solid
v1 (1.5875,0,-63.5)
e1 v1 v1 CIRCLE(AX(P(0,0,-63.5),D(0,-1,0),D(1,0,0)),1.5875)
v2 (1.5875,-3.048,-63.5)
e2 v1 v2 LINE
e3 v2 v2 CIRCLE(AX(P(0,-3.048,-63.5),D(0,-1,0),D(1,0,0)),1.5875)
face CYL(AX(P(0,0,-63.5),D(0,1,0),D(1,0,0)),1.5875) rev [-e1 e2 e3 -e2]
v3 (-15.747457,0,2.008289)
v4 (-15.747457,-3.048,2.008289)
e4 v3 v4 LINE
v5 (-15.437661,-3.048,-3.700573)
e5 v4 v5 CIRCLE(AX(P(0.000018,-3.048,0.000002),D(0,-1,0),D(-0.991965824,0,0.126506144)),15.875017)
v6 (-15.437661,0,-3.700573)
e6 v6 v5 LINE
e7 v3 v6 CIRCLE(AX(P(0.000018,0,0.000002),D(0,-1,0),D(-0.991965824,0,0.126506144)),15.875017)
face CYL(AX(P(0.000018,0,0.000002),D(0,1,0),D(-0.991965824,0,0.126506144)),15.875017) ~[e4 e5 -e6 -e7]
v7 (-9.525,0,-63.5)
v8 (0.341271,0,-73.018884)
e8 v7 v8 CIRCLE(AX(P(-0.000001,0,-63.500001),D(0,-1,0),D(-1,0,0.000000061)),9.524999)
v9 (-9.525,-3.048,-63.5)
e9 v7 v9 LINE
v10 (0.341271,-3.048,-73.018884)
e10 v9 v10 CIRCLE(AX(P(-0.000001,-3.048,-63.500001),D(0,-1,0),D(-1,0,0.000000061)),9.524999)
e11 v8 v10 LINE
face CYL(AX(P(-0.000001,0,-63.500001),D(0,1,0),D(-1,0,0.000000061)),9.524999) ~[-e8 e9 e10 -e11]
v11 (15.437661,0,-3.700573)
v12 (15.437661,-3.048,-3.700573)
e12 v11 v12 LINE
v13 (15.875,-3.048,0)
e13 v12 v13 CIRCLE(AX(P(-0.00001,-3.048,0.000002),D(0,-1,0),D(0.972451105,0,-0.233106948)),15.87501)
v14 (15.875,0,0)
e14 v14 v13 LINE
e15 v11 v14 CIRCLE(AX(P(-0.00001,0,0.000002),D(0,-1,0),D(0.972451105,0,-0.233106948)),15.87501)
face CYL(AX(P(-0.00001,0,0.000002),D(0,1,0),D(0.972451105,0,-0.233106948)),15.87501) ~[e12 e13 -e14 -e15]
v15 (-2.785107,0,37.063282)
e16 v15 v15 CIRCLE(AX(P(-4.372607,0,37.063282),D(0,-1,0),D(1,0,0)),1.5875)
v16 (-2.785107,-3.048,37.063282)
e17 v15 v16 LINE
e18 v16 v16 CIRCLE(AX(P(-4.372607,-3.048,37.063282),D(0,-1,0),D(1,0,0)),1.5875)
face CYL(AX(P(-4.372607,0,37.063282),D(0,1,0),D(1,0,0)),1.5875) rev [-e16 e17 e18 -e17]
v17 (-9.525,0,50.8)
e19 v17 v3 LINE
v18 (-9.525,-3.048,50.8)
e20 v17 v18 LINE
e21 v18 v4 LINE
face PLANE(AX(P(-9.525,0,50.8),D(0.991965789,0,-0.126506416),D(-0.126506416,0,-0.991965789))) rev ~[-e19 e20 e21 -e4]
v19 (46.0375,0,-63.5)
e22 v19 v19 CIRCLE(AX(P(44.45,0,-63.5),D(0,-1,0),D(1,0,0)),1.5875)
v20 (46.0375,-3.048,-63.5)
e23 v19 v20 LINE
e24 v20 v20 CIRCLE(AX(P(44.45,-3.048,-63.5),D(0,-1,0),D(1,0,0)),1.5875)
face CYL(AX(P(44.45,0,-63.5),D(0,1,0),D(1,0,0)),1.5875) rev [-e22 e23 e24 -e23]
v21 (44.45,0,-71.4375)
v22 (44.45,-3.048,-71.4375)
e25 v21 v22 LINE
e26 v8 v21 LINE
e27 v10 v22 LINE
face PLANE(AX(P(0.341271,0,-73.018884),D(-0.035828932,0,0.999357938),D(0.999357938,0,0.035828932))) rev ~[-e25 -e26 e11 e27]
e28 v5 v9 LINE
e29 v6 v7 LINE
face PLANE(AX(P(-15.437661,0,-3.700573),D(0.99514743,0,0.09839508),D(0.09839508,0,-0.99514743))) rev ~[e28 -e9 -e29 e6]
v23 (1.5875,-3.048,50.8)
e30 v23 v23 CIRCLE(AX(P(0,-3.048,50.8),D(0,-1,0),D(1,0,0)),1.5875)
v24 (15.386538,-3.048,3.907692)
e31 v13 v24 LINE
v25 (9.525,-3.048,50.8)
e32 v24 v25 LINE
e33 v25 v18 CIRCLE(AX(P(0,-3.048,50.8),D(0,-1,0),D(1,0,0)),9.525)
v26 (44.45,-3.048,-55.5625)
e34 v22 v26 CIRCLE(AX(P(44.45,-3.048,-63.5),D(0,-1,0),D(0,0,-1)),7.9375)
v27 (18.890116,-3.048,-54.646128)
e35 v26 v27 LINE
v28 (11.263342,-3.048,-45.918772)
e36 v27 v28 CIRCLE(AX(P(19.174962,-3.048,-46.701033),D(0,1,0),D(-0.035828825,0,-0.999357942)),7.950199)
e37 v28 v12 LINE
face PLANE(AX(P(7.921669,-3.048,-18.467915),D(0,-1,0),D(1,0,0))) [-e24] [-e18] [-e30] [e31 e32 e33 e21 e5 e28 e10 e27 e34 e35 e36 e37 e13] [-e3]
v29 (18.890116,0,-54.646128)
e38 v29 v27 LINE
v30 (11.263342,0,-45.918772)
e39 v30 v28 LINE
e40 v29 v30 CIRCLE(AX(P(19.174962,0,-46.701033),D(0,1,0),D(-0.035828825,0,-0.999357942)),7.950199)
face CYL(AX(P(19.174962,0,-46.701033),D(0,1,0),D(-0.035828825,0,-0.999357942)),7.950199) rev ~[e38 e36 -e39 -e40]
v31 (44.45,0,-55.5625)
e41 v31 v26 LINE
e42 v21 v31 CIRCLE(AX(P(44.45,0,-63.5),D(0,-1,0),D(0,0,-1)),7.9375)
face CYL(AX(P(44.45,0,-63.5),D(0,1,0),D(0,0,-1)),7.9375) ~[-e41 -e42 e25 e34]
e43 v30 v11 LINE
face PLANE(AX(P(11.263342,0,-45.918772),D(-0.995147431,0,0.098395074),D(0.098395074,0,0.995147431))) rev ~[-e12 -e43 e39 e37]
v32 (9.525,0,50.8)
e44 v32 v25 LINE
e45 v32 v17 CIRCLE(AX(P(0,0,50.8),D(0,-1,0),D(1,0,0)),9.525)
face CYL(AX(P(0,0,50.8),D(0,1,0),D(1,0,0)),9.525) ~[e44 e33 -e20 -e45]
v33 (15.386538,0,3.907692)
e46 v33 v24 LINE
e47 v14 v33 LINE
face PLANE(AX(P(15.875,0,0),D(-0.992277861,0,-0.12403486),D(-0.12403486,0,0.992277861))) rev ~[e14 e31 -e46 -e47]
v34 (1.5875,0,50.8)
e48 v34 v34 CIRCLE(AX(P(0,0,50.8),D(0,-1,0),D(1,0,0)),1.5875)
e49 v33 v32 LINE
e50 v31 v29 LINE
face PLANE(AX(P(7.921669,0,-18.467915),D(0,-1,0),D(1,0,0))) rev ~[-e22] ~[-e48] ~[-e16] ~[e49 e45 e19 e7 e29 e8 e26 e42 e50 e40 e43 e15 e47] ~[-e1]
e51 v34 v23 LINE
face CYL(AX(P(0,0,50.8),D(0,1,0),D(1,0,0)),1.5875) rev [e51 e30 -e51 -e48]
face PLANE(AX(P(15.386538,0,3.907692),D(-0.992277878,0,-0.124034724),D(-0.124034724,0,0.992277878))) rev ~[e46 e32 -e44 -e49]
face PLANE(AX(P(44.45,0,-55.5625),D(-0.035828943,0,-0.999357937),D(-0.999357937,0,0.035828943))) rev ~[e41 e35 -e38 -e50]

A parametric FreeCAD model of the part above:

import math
import FreeCAD as App
import Part
import Sketcher
from FreeCAD import Vector
Q = App.Units.Quantity

doc = App.newDocument("Part")
body = doc.addObject("PartDesign::Body", "Body")

# Sketch on XZ plane
sketch1 = body.newObject("Sketcher::SketchObject", "Sketch")
sketch1.AttachmentSupport = (doc.getObject("XZ_Plane"), [""])
sketch1.MapMode = "FlatFace"
sketch1.addGeometry([
    Part.LineSegment(Vector(-9.525, 50.8, 0), Vector(-15.747457, 2.008289, 0)),  # 0
    Part.ArcOfCircle(Part.Circle(Vector(0.000018, 0.000002, 0), Vector(0, 0, 1), 15.875017), math.radians(172.732258), math.radians(193.480052)),  # 1
    Part.LineSegment(Vector(-15.437661, -3.700573, 0), Vector(-9.525, -63.5, 0)),  # 2
    Part.ArcOfCircle(Part.Circle(Vector(-0.000001, -63.500001, 0), Vector(0, 0, 1), 9.524999), math.radians(179.999996), math.radians(272.053294)),  # 3
    Part.LineSegment(Vector(0.341271, -73.018884, 0), Vector(44.45, -71.4375, 0)),  # 4
    Part.ArcOfCircle(Part.Circle(Vector(44.45, -63.5, 0), Vector(0, 0, 1), 7.9375), math.radians(-90), math.radians(90)),  # 5
    Part.LineSegment(Vector(44.45, -55.5625, 0), Vector(18.890116, -54.646128, 0)),  # 6
    Part.ArcOfCircle(Part.Circle(Vector(19.174962, -46.701033, 0), Vector(0, 0, 1), 7.950199), math.radians(174.353235), math.radians(267.94672)),  # 7
    Part.LineSegment(Vector(11.263342, -45.918772, 0), Vector(15.437661, -3.700573, 0)),  # 8
    Part.ArcOfCircle(Part.Circle(Vector(-0.00001, 0.000002, 0), Vector(0, 0, 1), 15.87501), math.radians(-13.48006), math.radians(-0.000008)),  # 9
    Part.LineSegment(Vector(15.875, 0, 0), Vector(15.386538, 3.907692, 0)),  # 10
    Part.LineSegment(Vector(15.386538, 3.907692, 0), Vector(9.525, 50.8, 0)),  # 11
    Part.ArcOfCircle(Part.Circle(Vector(0, 50.8, 0), Vector(0, 0, 1), 9.525), math.radians(0), math.radians(180)),  # 12
    Part.Circle(Vector(0, -63.5, 0), Vector(0, 0, 1), 1.5875),  # 13
    Part.Circle(Vector(44.45, -63.5, 0), Vector(0, 0, 1), 1.5875),  # 14
    Part.Circle(Vector(-4.372607, 37.063282, 0), Vector(0, 0, 1), 1.5875),  # 15
    Part.Circle(Vector(0, 50.8, 0), Vector(0, 0, 1), 1.5875),  # 16
], False)
sketch1.addConstraint([
    Sketcher.Constraint("Tangent", 0, 2, 1, 1),
    Sketcher.Constraint("Coincident", 1, 2, 2, 1),
    Sketcher.Constraint("Coincident", 2, 2, 3, 1),
    Sketcher.Constraint("Tangent", 3, 2, 4, 1),
    Sketcher.Constraint("Coincident", 4, 2, 5, 1),
    Sketcher.Constraint("Coincident", 5, 2, 6, 1),
    Sketcher.Constraint("Tangent", 6, 2, 7, 2),
    Sketcher.Constraint("Tangent", 7, 1, 8, 1),
    Sketcher.Constraint("Coincident", 8, 2, 9, 1),
    Sketcher.Constraint("Coincident", 9, 2, 10, 1),
    Sketcher.Constraint("Coincident", 10, 2, 11, 1),
    Sketcher.Constraint("Coincident", 11, 2, 12, 1),
    Sketcher.Constraint("Coincident", 12, 2, 0, 1),
    Sketcher.Constraint("Coincident", 13, 3, 3, 3),
    Sketcher.Constraint("Coincident", 14, 3, 5, 3),
    Sketcher.Constraint("Coincident", 16, 3, 12, 3),
    Sketcher.Constraint("Equal", 3, 12),
    Sketcher.Constraint("Equal", 13, 14),
    Sketcher.Constraint("Equal", 14, 15),
    Sketcher.Constraint("Equal", 15, 16),
    Sketcher.Constraint("Symmetric", 1, 3, 9, 3, -1, 1),
    Sketcher.Constraint("Symmetric", 1, 2, 8, 2, -2),
    Sketcher.Constraint("Symmetric", 11, 2, 12, 2, -2),
    Sketcher.Constraint("PointOnObject", 1, 3, -1),
    Sketcher.Constraint("PointOnObject", 3, 3, -2),
    Sketcher.Constraint("PointOnObject", 9, 2, -1),
    Sketcher.Constraint("Parallel", 10, 11),
    Sketcher.Constraint("Horizontal", 3, 3, 5, 3),
    Sketcher.Constraint("Horizontal", 14, 3, 2, 2),
    Sketcher.Constraint("Horizontal", 16, 3, 11, 2),
    Sketcher.Constraint("Vertical", 14, 3, 4, 2),
    Sketcher.Constraint("Vertical", 4, 2, 5, 2),
    Sketcher.Constraint("Diameter", 13, Q("0.125 in")),
    Sketcher.Constraint("DistanceY", -1, 1, 12, 3, Q("2 in")),
    Sketcher.Constraint("Radius", 3, Q("0.375 in")),
    Sketcher.Constraint("Radius", 5, Q("0.3125 in")),
    Sketcher.Constraint("Radius", 7, Q("0.313 in")),
    Sketcher.Constraint("DistanceY", 3, 3, -1, 1, Q("2.5 in")),
    Sketcher.Constraint("DistanceX", -1, 1, 5, 3, Q("1.75 in")),
    Sketcher.Constraint("DistanceX", 11, 2, 9, 2, Q("0.25 in")),
    Sketcher.Constraint("Radius", 9, 15.87501),
    Sketcher.Constraint("DistanceY", 7, 1, 8, 2, 42.218199),
    Sketcher.Constraint("DistanceX", 1, 2, -1, 1, 15.437661),
    Sketcher.Constraint("DistanceX", -1, 1, 7, 1, 11.263342),
    Sketcher.Constraint("DistanceY", -1, 1, 10, 2, 3.907692),
    Sketcher.Constraint("DistanceY", 9, 3, 15, 3, 37.06328),
    Sketcher.Constraint("DistanceX", 15, 3, 7, 3, 23.547569),
])
pad1 = body.newObject("PartDesign::Pad", "Pad")
pad1.Profile = sketch1
pad1.Length = Q("0.12 in")

doc.recompute()
